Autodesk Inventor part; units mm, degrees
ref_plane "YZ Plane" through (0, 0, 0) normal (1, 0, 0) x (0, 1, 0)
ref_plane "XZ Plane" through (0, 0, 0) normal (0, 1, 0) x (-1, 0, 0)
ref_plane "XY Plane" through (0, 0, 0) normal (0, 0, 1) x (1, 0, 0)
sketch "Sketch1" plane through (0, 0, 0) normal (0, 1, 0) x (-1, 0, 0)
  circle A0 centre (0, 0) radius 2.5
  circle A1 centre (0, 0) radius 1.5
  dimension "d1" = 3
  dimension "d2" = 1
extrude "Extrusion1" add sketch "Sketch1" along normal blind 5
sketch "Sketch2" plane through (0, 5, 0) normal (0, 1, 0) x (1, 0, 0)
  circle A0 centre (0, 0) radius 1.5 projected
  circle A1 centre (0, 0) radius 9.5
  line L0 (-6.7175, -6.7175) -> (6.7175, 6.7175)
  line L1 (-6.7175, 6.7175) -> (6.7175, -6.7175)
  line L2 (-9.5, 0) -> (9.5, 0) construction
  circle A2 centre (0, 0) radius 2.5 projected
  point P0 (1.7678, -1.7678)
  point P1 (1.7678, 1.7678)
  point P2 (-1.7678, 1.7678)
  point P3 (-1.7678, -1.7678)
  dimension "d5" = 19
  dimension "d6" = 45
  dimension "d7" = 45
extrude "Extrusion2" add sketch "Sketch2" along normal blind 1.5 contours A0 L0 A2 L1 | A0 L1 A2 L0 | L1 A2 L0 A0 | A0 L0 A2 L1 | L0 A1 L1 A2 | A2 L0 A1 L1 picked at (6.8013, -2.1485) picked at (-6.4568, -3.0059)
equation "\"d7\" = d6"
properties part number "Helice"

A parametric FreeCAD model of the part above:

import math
import FreeCAD as App
import Part
import Sketcher
from FreeCAD import Vector
Q = App.Units.Quantity

doc = App.newDocument("Part")
body = doc.addObject("PartDesign::Body", "Body")

sketch1 = doc.addObject("Sketcher::SketchObject", "Sketch")
body.addObject(sketch1)
sketch1.AttachmentSupport = (doc.XZ_Plane, [""])
sketch1.MapMode = "FlatFace"
sketch1.addGeometry([
    Part.Circle(Vector(0, 0, 0), Vector(0, 0, 1), 2.5),
    Part.Circle(Vector(0, 0, 0), Vector(0, 0, 1), 1.5),
], False)
sketch1.addConstraint([
    Sketcher.Constraint("Coincident", 0, 3, -1, 1),
    Sketcher.Constraint("Coincident", 1, 3, -1, 1),
    Sketcher.Constraint("Diameter", 1, Q("3 mm")),
    Sketcher.Constraint("Diameter", 0, Q("5 mm")),
])
pad1 = doc.addObject("PartDesign::Pad", "Pad")
body.addObject(pad1)
pad1.Profile = sketch1
pad1.Length = 5
pad1.Reversed = True

sketch2 = doc.addObject("Sketcher::SketchObject", "Sketch001")
body.addObject(sketch2)
sketch2.AttachmentSupport = (doc.XZ_Plane, [""])
sketch2.MapMode = "FlatFace"
sketch2.AttachmentOffset = App.Placement(Vector(0, 0, -5), App.Rotation())
sketch2.addGeometry([
    Part.ArcOfCircle(Part.Circle(Vector(0, 0, 0), Vector(0, 0, 1), 2.5), math.radians(-135), math.radians(-45)),
    Part.LineSegment(Vector(-1.8, -1.8, 0), Vector(-6.7, -6.7, 0)),
    Part.ArcOfCircle(Part.Circle(Vector(0, 0, 0), Vector(0, 0, 1), 9.5), math.radians(135), math.radians(225)),
    Part.LineSegment(Vector(-6.7, 6.7, 0), Vector(-1.8, 1.8, 0)),
    Part.ArcOfCircle(Part.Circle(Vector(0, 0, 0), Vector(0, 0, 1), 2.5), math.radians(45), math.radians(135)),
    Part.LineSegment(Vector(1.8, 1.8, 0), Vector(6.7, 6.7, 0)),
    Part.ArcOfCircle(Part.Circle(Vector(0, 0, 0), Vector(0, 0, 1), 9.5), math.radians(-45), math.radians(45)),
    Part.LineSegment(Vector(6.7, -6.7, 0), Vector(1.8, -1.8, 0)),
    Part.Circle(Vector(0, 0, 0), Vector(0, 0, 1), 1.5),
], False)
sketch2.addConstraint([
    Sketcher.Constraint("Coincident", 0, 1, 1, 1),
    Sketcher.Constraint("Coincident", 1, 2, 2, 2),
    Sketcher.Constraint("Coincident", 2, 1, 3, 1),
    Sketcher.Constraint("Coincident", 3, 2, 4, 2),
    Sketcher.Constraint("Coincident", 4, 1, 5, 1),
    Sketcher.Constraint("Coincident", 5, 2, 6, 2),
    Sketcher.Constraint("Coincident", 6, 1, 7, 1),
    Sketcher.Constraint("Coincident", 7, 2, 0, 2),
    Sketcher.Constraint("Coincident", 0, 3, -1, 1),
    Sketcher.Constraint("Coincident", 2, 3, -1, 1),
    Sketcher.Constraint("Coincident", 4, 3, -1, 1),
    Sketcher.Constraint("Coincident", 6, 3, -1, 1),
    Sketcher.Constraint("Coincident", 8, 3, -1, 1),
    Sketcher.Constraint("Equal", 0, 4),
    Sketcher.Constraint("Equal", 2, 6),
    Sketcher.Constraint("Perpendicular", 1, 3),
    Sketcher.Constraint("Perpendicular", 3, 5),
    Sketcher.Constraint("Perpendicular", 5, 7),
    Sketcher.Constraint("Horizontal", 3, 2, 4, 1),
    Sketcher.Constraint("Horizontal", 2, 1, 5, 2),
    Sketcher.Constraint("Horizontal", 1, 2, 6, 1),
    Sketcher.Constraint("Vertical", 1, 2, 2, 1),
    Sketcher.Constraint("Radius", 2, Q("9.5 mm")),
    Sketcher.Constraint("Diameter", 8, Q("3 mm")),
    Sketcher.Constraint("Radius", 0, Q("2.5 mm")),
    Sketcher.Constraint("DistanceX", 0, 1, -1, 1, Q("1.7678 mm")),
])
pad2 = doc.addObject("PartDesign::Pad", "Pad001")
body.addObject(pad2)
pad2.Profile = sketch2
pad2.Length = 1.5
pad2.Reversed = True

doc.recompute()
